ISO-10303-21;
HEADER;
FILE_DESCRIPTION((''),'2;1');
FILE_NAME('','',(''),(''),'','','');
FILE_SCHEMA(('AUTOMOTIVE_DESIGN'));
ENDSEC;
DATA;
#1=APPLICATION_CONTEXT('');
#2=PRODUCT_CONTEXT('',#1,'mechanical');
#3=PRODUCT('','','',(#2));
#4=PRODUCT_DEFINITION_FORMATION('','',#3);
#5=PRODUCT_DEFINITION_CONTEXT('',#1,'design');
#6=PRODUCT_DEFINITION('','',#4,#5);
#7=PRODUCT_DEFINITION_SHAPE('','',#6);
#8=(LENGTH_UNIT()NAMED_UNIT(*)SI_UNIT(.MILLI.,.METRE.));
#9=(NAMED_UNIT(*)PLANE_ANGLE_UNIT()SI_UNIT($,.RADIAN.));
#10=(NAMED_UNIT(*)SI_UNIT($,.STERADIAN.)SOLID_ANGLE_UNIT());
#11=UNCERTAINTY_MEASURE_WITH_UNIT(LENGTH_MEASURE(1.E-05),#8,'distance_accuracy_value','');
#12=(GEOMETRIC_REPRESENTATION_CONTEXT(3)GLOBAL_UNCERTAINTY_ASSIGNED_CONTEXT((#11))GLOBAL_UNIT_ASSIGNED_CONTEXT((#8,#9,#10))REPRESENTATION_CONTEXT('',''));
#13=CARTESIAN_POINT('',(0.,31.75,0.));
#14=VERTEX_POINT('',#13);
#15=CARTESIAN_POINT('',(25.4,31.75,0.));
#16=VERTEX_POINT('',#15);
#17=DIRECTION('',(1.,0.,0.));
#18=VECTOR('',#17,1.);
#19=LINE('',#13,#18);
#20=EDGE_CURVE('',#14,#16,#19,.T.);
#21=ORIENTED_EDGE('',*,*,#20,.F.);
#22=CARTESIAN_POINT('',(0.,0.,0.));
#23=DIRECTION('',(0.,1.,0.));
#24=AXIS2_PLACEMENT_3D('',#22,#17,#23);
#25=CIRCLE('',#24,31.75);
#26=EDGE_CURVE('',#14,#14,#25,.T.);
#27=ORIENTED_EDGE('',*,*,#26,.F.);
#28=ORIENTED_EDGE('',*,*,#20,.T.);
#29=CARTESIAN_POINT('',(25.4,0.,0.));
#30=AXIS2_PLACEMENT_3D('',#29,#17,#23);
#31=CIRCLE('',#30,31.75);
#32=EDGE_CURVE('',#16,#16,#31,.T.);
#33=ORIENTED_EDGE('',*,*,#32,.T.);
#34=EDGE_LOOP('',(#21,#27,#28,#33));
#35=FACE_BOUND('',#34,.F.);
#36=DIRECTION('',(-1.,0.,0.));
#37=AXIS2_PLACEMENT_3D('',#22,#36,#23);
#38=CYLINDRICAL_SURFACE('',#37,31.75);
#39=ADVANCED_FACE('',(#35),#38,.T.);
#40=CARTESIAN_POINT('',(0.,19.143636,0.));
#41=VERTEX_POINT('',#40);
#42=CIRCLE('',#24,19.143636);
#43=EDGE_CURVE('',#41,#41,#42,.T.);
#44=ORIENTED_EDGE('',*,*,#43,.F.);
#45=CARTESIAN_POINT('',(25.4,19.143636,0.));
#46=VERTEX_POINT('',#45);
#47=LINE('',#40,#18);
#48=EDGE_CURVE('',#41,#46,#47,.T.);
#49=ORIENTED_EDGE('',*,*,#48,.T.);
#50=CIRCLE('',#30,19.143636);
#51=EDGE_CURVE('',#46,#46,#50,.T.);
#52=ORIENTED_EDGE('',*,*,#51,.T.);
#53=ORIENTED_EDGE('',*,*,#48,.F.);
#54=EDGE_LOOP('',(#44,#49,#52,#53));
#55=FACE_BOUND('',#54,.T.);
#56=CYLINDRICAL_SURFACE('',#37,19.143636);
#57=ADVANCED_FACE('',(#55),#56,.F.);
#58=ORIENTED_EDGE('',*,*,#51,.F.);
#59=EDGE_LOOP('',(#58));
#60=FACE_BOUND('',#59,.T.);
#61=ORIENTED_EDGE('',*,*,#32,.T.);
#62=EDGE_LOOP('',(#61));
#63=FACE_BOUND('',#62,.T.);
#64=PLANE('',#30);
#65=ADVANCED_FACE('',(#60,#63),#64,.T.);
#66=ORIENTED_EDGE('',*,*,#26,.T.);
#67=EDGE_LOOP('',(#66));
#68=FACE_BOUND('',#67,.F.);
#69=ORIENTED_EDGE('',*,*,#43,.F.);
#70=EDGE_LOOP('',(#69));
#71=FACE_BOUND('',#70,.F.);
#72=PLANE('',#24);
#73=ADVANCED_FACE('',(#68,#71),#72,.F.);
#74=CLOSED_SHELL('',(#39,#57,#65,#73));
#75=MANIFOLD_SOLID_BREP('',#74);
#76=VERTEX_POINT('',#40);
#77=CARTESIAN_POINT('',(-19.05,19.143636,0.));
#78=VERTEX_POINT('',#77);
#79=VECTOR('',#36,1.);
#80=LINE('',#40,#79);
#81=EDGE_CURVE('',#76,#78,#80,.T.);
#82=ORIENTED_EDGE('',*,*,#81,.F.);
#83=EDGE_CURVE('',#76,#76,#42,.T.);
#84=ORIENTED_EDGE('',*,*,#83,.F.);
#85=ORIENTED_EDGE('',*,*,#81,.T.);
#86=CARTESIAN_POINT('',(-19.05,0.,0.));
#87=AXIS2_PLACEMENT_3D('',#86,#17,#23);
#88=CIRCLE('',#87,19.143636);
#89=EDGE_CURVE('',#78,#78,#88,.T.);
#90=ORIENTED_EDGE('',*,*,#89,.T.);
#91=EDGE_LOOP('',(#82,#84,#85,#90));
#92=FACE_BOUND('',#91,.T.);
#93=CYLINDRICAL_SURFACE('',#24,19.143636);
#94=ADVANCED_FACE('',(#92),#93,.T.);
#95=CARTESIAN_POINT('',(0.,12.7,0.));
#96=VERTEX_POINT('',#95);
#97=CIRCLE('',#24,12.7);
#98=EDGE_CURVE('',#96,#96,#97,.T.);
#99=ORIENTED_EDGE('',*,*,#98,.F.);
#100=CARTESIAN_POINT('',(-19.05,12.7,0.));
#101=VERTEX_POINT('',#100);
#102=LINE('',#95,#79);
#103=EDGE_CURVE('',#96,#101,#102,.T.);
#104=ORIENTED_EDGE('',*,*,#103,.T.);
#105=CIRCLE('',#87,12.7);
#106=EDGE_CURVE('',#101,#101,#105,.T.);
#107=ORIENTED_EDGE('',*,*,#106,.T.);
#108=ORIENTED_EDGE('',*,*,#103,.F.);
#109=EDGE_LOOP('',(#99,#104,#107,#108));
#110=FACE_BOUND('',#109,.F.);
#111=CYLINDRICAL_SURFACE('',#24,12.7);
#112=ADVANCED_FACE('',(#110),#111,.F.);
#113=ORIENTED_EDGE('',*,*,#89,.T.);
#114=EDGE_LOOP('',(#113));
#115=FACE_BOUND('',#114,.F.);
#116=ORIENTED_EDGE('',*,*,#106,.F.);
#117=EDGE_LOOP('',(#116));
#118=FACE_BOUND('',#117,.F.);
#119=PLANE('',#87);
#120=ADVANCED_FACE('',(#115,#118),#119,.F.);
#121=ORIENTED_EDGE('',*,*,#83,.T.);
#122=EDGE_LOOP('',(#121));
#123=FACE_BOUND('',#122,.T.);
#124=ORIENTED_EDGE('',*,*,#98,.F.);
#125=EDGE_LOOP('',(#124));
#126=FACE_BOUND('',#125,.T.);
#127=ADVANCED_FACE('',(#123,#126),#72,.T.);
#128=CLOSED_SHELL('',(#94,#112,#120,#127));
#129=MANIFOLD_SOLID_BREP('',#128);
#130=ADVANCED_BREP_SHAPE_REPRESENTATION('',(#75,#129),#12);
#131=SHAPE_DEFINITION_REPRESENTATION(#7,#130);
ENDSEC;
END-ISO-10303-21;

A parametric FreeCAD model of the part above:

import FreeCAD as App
import Part
import Sketcher
from FreeCAD import Vector
Q = App.Units.Quantity

doc = App.newDocument("Part")
body = doc.addObject("PartDesign::Body", "Body")

# Sketch on YZ plane
sketch1 = body.newObject("Sketcher::SketchObject", "Sketch")
sketch1.AttachmentSupport = (doc.getObject("YZ_Plane"), [""])
sketch1.MapMode = "FlatFace"
sketch1.addGeometry([
    Part.Circle(Vector(0, 0, 0), Vector(0, 0, 1), 31.75),
    Part.Circle(Vector(0, 0, 0), Vector(0, 0, 1), 19.143636),
], False)
sketch1.addConstraint([
    Sketcher.Constraint("Coincident", 0, 3, -1, 1),
    Sketcher.Constraint("Coincident", 1, 3, -1, 1),
    Sketcher.Constraint("Diameter", 0, Q("2.5 in")),
    Sketcher.Constraint("Diameter", 1, 38.287272),
])
pad1 = body.newObject("PartDesign::Pad", "Pad")
pad1.Profile = sketch1
pad1.Length = Q("1 in")
body2 = doc.addObject("PartDesign::Body", "Body001")

# Sketch on YZ plane
sketch2 = body2.newObject("Sketcher::SketchObject", "Sketch001")
sketch2.AttachmentSupport = (doc.getObject("YZ_Plane001"), [""])
sketch2.MapMode = "FlatFace"
sketch2.addGeometry([
    Part.Circle(Vector(0, 0, 0), Vector(0, 0, 1), 19.143636),
    Part.Circle(Vector(0, 0, 0), Vector(0, 0, 1), 12.7),
], False)
sketch2.addConstraint([
    Sketcher.Constraint("Coincident", 0, 3, -1, 1),
    Sketcher.Constraint("Coincident", 1, 3, -1, 1),
    Sketcher.Constraint("Diameter", 1, Q("1 in")),
    Sketcher.Constraint("Diameter", 0, 38.287272),
])
pad2 = body2.newObject("PartDesign::Pad", "Pad001")
pad2.Profile = sketch2
pad2.Length = Q("0.75 in")
pad2.Reversed = True

doc.recompute()
